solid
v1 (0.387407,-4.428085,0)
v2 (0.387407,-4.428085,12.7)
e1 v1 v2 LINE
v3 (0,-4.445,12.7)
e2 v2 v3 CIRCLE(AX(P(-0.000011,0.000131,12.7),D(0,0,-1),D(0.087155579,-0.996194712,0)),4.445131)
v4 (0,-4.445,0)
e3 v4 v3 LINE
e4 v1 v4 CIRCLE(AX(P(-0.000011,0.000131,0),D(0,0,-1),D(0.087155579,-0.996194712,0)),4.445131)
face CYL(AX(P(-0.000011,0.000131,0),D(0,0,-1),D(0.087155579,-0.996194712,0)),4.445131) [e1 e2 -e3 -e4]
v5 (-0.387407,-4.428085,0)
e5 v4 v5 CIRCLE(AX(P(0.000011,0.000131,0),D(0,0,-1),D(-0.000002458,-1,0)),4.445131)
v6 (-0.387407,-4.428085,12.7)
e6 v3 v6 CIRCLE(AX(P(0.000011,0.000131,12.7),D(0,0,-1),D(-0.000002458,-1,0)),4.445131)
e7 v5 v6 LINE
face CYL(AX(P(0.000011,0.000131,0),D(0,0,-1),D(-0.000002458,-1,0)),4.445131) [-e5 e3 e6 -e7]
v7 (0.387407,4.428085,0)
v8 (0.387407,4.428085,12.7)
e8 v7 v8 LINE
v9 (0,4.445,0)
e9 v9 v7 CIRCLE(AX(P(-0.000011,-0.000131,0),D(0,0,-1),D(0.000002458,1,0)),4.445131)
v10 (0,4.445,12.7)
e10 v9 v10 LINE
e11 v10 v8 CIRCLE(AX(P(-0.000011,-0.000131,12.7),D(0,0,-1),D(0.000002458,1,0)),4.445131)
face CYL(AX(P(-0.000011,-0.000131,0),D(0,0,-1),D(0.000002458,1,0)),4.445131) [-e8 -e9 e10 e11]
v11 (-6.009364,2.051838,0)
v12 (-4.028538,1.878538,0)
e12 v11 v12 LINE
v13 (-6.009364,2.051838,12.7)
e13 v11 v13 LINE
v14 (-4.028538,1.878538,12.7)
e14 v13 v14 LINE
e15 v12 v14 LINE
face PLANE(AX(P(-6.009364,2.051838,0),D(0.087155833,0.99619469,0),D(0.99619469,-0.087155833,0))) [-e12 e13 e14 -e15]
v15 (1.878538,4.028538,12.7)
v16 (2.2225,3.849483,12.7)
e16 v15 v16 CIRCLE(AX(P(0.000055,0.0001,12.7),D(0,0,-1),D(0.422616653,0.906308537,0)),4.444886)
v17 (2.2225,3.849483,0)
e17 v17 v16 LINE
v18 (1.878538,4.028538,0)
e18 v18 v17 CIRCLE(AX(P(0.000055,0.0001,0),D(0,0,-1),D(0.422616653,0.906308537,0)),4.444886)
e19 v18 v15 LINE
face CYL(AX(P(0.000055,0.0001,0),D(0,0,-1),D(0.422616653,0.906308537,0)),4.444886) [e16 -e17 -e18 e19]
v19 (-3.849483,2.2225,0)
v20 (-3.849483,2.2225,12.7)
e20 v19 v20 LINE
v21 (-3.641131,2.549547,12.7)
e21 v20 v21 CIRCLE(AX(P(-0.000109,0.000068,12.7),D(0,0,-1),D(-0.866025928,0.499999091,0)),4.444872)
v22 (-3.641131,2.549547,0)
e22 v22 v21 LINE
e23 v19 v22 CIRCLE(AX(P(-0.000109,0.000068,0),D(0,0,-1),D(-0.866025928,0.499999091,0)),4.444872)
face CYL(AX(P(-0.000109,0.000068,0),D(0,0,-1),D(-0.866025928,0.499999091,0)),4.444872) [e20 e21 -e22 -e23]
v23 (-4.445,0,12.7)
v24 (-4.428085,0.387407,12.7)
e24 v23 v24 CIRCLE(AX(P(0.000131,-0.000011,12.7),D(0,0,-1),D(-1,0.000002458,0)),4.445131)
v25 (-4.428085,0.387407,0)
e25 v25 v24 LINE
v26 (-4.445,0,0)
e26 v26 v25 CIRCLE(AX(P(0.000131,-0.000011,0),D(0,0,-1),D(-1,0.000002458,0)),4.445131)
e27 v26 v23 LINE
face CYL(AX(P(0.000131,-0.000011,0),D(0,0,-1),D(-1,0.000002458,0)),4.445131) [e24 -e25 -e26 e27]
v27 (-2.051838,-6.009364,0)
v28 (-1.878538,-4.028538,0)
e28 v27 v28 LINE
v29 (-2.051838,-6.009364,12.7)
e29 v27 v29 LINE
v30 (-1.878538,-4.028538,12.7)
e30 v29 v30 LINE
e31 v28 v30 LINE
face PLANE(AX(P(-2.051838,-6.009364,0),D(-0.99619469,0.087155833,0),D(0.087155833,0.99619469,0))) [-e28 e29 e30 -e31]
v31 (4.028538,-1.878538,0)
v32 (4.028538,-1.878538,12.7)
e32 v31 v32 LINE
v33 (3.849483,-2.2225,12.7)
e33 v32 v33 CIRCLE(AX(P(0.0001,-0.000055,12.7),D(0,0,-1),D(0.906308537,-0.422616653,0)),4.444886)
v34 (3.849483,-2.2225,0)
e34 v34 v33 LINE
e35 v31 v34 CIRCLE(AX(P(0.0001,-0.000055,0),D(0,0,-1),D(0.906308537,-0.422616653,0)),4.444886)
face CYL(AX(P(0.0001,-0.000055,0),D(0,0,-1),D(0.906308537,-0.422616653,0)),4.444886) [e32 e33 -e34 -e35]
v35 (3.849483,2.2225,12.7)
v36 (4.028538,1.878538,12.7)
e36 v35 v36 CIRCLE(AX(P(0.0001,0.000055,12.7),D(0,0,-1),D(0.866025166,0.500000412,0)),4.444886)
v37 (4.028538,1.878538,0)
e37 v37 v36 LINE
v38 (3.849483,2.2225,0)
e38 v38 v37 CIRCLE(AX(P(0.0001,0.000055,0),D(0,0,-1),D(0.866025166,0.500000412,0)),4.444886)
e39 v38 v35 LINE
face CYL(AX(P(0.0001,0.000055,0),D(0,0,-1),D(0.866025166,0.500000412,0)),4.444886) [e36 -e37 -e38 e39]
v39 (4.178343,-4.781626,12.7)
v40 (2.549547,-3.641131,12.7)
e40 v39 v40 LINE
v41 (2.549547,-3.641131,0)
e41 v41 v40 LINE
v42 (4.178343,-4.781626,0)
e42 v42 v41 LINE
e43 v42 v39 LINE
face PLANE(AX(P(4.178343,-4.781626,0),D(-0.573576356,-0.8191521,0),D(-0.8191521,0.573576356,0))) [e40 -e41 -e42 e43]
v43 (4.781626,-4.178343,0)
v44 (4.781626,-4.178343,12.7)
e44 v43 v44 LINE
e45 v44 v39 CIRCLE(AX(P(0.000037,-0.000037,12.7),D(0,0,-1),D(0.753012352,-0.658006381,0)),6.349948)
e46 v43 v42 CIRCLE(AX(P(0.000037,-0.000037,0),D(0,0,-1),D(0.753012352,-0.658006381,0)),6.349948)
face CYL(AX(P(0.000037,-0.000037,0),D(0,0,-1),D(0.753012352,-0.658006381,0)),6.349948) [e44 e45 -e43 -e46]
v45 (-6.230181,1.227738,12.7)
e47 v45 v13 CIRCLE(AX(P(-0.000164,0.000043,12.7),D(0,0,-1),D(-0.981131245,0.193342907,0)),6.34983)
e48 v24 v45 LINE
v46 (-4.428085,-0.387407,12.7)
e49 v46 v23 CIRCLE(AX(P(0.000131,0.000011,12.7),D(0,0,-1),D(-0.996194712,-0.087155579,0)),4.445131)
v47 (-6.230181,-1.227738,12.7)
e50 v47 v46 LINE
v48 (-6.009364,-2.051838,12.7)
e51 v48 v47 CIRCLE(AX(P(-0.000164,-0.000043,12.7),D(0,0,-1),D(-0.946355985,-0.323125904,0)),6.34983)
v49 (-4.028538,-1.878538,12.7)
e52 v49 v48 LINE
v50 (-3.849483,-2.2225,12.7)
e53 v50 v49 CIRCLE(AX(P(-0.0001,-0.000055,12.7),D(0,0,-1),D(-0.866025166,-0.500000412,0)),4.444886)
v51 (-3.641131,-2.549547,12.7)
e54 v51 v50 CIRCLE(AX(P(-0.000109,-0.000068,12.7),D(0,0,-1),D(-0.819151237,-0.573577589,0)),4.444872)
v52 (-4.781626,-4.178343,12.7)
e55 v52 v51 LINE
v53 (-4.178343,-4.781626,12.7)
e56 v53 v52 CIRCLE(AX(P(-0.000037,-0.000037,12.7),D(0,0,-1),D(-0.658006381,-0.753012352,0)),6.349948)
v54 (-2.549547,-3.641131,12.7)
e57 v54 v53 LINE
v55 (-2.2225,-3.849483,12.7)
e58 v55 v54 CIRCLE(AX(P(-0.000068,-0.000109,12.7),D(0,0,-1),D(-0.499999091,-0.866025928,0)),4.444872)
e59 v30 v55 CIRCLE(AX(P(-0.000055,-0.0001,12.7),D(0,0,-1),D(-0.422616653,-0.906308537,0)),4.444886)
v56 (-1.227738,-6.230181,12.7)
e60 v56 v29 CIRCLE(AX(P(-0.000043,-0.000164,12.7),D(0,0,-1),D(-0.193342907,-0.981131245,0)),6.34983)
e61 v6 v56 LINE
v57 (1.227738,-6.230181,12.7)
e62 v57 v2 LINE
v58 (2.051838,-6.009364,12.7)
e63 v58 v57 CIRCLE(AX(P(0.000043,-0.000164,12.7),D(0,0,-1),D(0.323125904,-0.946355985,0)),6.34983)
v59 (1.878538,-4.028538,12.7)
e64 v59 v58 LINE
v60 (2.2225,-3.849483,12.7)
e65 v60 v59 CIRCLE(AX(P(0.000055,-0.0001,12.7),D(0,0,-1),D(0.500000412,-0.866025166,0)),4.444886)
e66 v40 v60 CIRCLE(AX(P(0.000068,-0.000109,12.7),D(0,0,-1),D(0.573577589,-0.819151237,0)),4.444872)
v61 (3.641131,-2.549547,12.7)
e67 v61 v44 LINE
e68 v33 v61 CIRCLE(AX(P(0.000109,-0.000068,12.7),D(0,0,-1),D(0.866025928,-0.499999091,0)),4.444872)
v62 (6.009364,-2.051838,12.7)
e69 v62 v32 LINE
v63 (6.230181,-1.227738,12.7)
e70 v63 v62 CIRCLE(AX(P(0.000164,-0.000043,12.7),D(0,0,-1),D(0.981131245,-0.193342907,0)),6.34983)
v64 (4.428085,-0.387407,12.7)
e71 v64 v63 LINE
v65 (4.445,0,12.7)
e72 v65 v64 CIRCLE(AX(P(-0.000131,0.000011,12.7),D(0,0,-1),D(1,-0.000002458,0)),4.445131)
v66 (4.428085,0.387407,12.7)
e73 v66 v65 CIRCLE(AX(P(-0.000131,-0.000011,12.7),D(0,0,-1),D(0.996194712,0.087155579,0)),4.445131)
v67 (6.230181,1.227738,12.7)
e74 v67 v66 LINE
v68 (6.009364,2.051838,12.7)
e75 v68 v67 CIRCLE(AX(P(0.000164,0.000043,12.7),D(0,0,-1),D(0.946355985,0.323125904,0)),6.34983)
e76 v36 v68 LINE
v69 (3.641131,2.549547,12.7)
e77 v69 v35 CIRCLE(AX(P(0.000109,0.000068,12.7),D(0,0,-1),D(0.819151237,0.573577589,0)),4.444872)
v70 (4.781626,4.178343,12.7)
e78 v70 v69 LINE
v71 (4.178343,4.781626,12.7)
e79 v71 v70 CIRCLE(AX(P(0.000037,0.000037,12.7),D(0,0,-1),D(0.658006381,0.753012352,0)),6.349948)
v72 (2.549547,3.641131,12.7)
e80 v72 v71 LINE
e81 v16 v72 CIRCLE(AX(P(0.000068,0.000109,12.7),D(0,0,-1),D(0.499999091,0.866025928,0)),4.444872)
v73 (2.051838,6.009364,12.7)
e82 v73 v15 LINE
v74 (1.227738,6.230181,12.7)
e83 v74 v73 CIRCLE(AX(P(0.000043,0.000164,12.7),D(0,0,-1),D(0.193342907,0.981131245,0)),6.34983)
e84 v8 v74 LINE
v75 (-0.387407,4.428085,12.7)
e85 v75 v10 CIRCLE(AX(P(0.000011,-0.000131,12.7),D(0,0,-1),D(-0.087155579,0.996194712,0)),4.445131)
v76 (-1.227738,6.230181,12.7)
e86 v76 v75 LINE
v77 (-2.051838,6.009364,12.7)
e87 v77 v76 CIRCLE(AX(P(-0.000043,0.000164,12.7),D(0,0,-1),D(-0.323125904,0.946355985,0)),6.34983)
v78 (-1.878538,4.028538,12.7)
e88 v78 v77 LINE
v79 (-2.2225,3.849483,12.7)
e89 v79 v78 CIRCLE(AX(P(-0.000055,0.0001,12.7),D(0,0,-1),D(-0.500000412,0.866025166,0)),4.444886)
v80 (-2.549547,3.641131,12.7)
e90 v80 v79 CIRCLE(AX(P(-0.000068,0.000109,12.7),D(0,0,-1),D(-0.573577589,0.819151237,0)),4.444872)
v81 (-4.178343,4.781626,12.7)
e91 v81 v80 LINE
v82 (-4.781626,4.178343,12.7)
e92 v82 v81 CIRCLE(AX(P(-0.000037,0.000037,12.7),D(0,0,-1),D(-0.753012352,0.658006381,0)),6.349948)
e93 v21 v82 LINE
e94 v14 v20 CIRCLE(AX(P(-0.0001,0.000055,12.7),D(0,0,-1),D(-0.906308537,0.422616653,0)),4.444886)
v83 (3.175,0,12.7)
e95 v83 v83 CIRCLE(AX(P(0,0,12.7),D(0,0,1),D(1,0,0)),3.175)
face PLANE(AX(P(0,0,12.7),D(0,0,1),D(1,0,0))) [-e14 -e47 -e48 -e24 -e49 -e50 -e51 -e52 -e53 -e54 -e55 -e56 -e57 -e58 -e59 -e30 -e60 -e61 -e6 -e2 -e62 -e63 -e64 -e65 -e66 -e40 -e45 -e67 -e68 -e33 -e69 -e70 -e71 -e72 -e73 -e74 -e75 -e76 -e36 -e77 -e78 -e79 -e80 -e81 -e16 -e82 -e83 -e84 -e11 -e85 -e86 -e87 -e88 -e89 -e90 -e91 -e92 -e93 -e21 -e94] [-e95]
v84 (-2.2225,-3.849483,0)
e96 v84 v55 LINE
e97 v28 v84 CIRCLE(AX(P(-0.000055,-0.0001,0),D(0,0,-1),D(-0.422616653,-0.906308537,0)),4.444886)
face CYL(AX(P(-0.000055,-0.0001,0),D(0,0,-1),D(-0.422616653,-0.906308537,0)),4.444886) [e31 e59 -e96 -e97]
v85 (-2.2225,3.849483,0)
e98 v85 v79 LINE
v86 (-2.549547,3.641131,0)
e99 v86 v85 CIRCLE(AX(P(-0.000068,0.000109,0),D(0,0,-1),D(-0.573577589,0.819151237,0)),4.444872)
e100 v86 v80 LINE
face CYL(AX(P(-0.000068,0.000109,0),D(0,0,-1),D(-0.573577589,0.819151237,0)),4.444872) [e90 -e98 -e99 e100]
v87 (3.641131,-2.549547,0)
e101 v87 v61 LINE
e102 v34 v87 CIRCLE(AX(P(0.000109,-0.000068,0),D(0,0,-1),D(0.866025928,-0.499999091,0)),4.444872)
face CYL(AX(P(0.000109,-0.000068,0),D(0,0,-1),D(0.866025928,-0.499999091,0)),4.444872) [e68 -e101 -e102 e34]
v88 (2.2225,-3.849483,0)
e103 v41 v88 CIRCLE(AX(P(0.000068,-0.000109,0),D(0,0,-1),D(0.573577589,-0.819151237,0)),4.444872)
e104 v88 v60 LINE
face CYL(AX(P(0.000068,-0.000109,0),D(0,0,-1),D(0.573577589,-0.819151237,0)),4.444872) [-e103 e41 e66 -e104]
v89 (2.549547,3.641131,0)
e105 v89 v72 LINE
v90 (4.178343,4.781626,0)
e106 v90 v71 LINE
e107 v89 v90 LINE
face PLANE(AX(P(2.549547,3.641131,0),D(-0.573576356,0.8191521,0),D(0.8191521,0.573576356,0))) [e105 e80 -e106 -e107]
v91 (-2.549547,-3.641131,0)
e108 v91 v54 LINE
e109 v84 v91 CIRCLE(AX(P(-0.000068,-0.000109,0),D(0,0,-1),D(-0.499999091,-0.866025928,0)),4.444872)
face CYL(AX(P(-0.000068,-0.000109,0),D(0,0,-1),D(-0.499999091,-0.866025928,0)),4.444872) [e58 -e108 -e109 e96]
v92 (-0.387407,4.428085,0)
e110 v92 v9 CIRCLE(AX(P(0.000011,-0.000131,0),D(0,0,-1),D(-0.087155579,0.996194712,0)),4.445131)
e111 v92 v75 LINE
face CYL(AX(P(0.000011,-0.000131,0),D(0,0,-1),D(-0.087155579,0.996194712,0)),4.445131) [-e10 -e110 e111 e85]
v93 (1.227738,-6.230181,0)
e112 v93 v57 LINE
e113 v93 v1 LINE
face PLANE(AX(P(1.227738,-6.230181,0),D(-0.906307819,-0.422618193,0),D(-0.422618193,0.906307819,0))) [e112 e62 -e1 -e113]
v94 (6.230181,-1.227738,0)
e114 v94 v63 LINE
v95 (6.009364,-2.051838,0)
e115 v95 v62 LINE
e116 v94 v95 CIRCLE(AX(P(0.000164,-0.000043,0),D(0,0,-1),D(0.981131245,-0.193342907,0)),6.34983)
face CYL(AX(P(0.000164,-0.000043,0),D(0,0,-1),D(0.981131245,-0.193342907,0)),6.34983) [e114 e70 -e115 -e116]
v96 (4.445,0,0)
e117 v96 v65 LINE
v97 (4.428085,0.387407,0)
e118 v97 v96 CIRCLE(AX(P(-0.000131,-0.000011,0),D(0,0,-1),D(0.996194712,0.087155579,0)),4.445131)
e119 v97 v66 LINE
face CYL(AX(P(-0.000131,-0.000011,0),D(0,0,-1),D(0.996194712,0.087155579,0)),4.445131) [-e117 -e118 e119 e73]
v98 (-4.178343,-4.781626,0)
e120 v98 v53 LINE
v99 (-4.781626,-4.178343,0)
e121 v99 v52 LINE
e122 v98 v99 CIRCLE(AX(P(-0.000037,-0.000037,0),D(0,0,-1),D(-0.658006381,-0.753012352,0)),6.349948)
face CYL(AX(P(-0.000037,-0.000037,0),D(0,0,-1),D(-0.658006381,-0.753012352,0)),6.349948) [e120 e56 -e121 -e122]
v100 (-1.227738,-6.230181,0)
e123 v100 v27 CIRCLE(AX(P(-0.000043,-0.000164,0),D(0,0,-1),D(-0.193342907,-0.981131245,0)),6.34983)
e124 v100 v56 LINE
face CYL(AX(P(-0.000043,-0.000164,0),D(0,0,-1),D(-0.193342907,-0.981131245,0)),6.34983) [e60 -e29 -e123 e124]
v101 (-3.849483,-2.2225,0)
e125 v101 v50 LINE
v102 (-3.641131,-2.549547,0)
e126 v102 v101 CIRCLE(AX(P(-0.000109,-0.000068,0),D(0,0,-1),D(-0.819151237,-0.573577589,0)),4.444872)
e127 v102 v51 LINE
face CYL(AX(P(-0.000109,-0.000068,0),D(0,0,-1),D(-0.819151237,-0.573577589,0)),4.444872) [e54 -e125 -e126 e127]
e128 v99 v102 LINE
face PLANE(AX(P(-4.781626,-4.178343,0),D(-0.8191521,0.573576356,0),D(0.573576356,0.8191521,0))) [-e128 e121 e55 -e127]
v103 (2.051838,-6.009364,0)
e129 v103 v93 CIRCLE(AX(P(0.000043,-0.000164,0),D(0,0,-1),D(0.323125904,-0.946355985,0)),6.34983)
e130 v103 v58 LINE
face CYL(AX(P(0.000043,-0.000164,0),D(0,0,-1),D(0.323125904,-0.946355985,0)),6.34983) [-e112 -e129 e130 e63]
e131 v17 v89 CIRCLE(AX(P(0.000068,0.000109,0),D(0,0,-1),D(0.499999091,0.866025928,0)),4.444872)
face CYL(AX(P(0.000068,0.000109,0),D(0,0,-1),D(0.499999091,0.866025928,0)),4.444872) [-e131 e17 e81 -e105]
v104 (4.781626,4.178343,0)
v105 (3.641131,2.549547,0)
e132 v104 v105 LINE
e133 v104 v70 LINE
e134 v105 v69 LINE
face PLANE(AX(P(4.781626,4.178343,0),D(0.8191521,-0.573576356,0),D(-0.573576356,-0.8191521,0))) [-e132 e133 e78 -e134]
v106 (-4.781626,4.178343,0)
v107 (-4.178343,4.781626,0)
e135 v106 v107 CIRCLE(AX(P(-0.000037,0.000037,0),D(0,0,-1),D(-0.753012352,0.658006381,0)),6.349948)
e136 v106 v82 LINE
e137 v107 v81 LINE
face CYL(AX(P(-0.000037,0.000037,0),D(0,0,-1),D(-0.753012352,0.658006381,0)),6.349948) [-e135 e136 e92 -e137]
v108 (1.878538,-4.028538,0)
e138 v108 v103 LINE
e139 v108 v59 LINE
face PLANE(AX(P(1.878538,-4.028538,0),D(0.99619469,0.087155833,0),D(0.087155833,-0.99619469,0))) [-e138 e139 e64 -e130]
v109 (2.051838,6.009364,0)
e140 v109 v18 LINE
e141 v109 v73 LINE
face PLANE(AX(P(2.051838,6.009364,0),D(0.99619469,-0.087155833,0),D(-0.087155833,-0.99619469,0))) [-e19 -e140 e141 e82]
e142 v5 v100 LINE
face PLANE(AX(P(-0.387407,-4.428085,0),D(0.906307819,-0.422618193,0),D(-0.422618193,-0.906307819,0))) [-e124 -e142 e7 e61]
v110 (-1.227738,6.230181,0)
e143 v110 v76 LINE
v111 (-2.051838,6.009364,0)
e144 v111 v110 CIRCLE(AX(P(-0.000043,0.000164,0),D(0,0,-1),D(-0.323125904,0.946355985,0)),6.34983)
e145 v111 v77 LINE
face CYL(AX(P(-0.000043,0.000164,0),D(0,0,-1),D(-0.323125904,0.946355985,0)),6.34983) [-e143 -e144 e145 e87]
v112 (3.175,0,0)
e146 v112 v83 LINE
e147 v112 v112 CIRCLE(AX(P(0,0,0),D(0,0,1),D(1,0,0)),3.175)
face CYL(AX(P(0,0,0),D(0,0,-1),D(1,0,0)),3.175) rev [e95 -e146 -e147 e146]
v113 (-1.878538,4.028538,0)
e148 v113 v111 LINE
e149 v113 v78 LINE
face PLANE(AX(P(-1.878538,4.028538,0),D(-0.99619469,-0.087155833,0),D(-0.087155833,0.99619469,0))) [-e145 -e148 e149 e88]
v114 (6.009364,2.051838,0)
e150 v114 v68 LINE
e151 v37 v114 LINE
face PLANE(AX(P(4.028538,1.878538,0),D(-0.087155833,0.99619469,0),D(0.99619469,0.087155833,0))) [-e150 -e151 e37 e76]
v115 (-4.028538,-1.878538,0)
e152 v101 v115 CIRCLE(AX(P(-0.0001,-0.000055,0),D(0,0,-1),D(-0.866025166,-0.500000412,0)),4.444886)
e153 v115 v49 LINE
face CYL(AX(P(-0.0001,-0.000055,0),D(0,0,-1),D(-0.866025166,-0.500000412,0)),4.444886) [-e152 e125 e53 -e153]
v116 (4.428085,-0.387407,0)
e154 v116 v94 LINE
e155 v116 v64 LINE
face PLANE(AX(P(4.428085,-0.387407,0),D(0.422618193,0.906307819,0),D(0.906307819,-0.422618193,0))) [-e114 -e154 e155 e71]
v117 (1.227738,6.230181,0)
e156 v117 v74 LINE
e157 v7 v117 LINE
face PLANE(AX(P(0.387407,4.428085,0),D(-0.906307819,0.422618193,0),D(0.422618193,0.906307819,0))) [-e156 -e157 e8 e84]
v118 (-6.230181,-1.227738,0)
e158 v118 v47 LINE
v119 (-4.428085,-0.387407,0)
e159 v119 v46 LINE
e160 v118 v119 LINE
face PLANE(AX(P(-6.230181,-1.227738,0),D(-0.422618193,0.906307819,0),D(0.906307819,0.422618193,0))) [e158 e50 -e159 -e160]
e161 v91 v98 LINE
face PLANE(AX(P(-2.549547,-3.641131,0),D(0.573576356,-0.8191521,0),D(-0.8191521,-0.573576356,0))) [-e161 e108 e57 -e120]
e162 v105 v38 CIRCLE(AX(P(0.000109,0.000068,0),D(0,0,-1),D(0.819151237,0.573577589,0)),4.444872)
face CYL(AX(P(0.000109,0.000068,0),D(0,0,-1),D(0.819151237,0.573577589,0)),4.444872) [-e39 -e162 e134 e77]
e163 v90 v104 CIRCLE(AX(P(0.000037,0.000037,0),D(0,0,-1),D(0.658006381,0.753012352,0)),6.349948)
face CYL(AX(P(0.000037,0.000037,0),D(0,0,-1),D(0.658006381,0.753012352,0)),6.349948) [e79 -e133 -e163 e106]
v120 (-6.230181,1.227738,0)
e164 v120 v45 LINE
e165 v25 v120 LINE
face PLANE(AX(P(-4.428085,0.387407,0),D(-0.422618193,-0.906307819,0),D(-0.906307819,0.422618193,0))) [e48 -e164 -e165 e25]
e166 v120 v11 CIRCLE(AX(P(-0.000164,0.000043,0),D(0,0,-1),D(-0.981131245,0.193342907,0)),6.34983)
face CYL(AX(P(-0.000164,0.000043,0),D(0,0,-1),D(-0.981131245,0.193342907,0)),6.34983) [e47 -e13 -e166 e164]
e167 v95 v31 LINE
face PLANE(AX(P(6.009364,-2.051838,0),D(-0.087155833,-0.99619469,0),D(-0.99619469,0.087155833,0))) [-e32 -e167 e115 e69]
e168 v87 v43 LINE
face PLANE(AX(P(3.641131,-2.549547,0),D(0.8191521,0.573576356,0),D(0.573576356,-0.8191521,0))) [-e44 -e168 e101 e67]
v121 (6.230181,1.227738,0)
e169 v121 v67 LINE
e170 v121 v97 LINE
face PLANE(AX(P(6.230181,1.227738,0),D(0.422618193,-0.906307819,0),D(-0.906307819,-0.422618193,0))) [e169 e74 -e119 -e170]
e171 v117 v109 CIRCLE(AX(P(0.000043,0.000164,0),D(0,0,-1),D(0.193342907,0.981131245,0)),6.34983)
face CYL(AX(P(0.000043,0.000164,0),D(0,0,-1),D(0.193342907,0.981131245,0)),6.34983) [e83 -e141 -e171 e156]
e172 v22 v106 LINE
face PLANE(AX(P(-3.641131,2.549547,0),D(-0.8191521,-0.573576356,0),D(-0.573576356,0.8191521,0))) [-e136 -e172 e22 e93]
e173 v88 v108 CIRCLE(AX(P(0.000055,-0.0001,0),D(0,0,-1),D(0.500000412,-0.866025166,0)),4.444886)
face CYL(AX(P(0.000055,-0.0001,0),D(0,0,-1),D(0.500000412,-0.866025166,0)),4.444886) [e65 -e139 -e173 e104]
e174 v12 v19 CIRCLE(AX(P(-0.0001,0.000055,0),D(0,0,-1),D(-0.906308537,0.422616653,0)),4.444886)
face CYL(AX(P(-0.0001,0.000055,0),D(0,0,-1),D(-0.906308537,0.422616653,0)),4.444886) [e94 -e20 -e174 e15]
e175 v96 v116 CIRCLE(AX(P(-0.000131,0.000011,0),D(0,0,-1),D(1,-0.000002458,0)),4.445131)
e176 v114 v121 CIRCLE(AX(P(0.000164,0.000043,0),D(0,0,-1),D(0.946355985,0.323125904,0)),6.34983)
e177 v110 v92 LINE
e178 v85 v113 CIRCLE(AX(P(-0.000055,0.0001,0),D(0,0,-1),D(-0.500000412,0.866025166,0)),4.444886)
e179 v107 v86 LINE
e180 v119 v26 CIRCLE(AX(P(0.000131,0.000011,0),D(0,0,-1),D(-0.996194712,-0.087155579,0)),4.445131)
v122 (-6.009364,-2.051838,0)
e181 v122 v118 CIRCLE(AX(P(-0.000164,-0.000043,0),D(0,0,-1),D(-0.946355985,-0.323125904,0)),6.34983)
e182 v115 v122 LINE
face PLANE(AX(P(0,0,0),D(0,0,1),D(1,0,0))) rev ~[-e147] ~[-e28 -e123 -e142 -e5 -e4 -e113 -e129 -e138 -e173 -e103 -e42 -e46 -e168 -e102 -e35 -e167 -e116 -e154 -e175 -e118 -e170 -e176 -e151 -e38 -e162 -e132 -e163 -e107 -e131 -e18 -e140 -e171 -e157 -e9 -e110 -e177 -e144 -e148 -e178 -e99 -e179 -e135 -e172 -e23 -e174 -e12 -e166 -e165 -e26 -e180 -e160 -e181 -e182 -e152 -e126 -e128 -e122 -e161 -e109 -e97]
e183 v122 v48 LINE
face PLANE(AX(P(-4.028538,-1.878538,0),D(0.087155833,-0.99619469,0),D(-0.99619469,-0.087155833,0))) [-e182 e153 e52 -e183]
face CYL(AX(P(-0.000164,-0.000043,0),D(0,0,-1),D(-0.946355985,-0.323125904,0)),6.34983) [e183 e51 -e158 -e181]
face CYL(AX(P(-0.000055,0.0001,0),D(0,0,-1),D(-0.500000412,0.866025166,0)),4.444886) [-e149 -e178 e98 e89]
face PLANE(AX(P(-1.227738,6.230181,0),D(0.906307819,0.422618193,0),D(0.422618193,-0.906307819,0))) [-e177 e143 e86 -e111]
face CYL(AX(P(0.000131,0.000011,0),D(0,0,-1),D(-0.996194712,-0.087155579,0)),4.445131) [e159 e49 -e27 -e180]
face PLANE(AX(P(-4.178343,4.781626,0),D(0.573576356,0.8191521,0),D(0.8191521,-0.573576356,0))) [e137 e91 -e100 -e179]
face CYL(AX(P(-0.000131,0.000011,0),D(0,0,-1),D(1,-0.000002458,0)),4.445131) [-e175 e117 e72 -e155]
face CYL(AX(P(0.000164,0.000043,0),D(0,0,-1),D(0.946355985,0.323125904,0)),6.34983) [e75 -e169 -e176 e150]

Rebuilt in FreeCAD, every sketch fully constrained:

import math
import FreeCAD as App
import Part
import Sketcher
from FreeCAD import Vector
Q = App.Units.Quantity

doc = App.newDocument("Part")
body = doc.addObject("PartDesign::Body", "Body")

sketch1 = body.newObject("Sketcher::SketchObject", "Sketch")
sketch1.AttachmentSupport = (doc.getObject("XY_Plane"), [""])
sketch1.MapMode = "FlatFace"
sketch1.addGeometry(Part.Circle(Vector(0, 0, 0), Vector(0, 0, 1), 6.3), False)
sketch1.addGeometry(Part.Circle(Vector(0, 0, 0), Vector(0, 0, 1), 3.2), False)
sketch1.addConstraint(Sketcher.Constraint("Coincident", 0, 3, -1, 1))
sketch1.addConstraint(Sketcher.Constraint("Coincident", 1, 3, -1, 1))
sketch1.addConstraint(Sketcher.Constraint("Diameter", 0, Q("0.5 in")))
sketch1.addConstraint(Sketcher.Constraint("Diameter", 1, Q("0.25 in")))
pad1 = body.newObject("PartDesign::Pad", "Pad")
pad1.Profile = sketch1
pad1.Length = Q("0.5 in")

sketch2 = body.newObject("Sketcher::SketchObject", "Sketch001")
sketch2.AttachmentSupport = (doc.getObject("XY_Plane"), [""])
sketch2.MapMode = "FlatFace"
sketch2.addGeometry(Part.Circle(Vector(0, 0, 0), Vector(0, 0, 1), 6.699885), False)
sketch2.addGeometry(Part.LineSegment(Vector(-6.230181, -1.227738, 0), Vector(-4.428085, -0.387407, 0)), False)
sketch2.addGeometry(Part.ArcOfCircle(Part.Circle(Vector(0.000131, 0.000011, 0), Vector(0, 0, 1), 4.445131), math.radians(-179.999859), math.radians(-175.000009)), False)
sketch2.addGeometry(Part.ArcOfCircle(Part.Circle(Vector(0.000131, -0.000011, 0), Vector(0, 0, 1), 4.445131), math.radians(175.000009), math.radians(179.999859)), False)
sketch2.addGeometry(Part.LineSegment(Vector(-4.428085, 0.387407, 0), Vector(-6.230181, 1.227738, 0)), False)
sketch2.addGeometry(Part.ArcOfCircle(Part.Circle(Vector(-0.000164, 0.000043, 0), Vector(0, 0, 1), 6.34983), math.radians(161.147928), math.radians(168.852063)), False)
sketch2.addGeometry(Part.LineSegment(Vector(-6.009364, 2.051838, 0), Vector(-4.028538, 1.878538, 0)), False)
sketch2.addGeometry(Part.ArcOfCircle(Part.Circle(Vector(-0.0001, 0.000055, 0), Vector(0, 0, 1), 4.444886), math.radians(149.999973), math.radians(155.000102)), False)
sketch2.addGeometry(Part.ArcOfCircle(Part.Circle(Vector(-0.000109, 0.000068, 0), Vector(0, 0, 1), 4.444872), math.radians(144.999919), math.radians(150.00006)), False)
sketch2.addGeometry(Part.LineSegment(Vector(-3.641131, 2.549547, 0), Vector(-4.781626, 4.178343, 0)), False)
sketch2.addGeometry(Part.ArcOfCircle(Part.Circle(Vector(-0.000037, 0.000037, 0), Vector(0, 0, 1), 6.349948), math.radians(131.148005), math.radians(138.851995)), False)
sketch2.addGeometry(Part.LineSegment(Vector(-4.178343, 4.781626, 0), Vector(-2.549547, 3.641131, 0)), False)
sketch2.addGeometry(Part.ArcOfCircle(Part.Circle(Vector(-0.000068, 0.000109, 0), Vector(0, 0, 1), 4.444872), math.radians(119.99994), math.radians(125.000081)), False)
sketch2.addGeometry(Part.ArcOfCircle(Part.Circle(Vector(-0.000055, 0.0001, 0), Vector(0, 0, 1), 4.444886), math.radians(114.999898), math.radians(120.000027)), False)
sketch2.addGeometry(Part.LineSegment(Vector(-1.878538, 4.028538, 0), Vector(-2.051838, 6.009364, 0)), False)
sketch2.addGeometry(Part.ArcOfCircle(Part.Circle(Vector(-0.000043, 0.000164, 0), Vector(0, 0, 1), 6.34983), math.radians(101.147937), math.radians(108.852072)), False)
sketch2.addGeometry(Part.LineSegment(Vector(-1.227738, 6.230181, 0), Vector(-0.387407, 4.428085, 0)), False)
sketch2.addGeometry(Part.ArcOfCircle(Part.Circle(Vector(0.000011, -0.000131, 0), Vector(0, 0, 1), 4.445131), math.radians(90.000141), math.radians(94.999991)), False)
sketch2.addGeometry(Part.ArcOfCircle(Part.Circle(Vector(-0.000011, -0.000131, 0), Vector(0, 0, 1), 4.445131), math.radians(85.000009), math.radians(89.999859)), False)
sketch2.addGeometry(Part.LineSegment(Vector(0.387407, 4.428085, 0), Vector(1.227738, 6.230181, 0)), False)
sketch2.addGeometry(Part.ArcOfCircle(Part.Circle(Vector(0.000043, 0.000164, 0), Vector(0, 0, 1), 6.34983), math.radians(71.147928), math.radians(78.852063)), False)
sketch2.addGeometry(Part.LineSegment(Vector(2.051838, 6.009364, 0), Vector(1.878538, 4.028538, 0)), False)
sketch2.addGeometry(Part.ArcOfCircle(Part.Circle(Vector(0.000055, 0.0001, 0), Vector(0, 0, 1), 4.444886), math.radians(59.999973), math.radians(65.000102)), False)
sketch2.addGeometry(Part.ArcOfCircle(Part.Circle(Vector(0.000068, 0.000109, 0), Vector(0, 0, 1), 4.444872), math.radians(54.999919), math.radians(60.00006)), False)
sketch2.addGeometry(Part.LineSegment(Vector(2.549547, 3.641131, 0), Vector(4.178343, 4.781626, 0)), False)
sketch2.addGeometry(Part.ArcOfCircle(Part.Circle(Vector(0.000037, 0.000037, 0), Vector(0, 0, 1), 6.349948), math.radians(41.148005), math.radians(48.851995)), False)
sketch2.addGeometry(Part.LineSegment(Vector(4.781626, 4.178343, 0), Vector(3.641131, 2.549547, 0)), False)
sketch2.addGeometry(Part.ArcOfCircle(Part.Circle(Vector(0.000109, 0.000068, 0), Vector(0, 0, 1), 4.444872), math.radians(29.99994), math.radians(35.000081)), False)
sketch2.addGeometry(Part.ArcOfCircle(Part.Circle(Vector(0.0001, 0.000055, 0), Vector(0, 0, 1), 4.444886), math.radians(24.999898), math.radians(30.000027)), False)
sketch2.addGeometry(Part.LineSegment(Vector(4.028538, 1.878538, 0), Vector(6.009364, 2.051838, 0)), False)
sketch2.addGeometry(Part.ArcOfCircle(Part.Circle(Vector(0.000164, 0.000043, 0), Vector(0, 0, 1), 6.34983), math.radians(11.147937), math.radians(18.852072)), False)
sketch2.addGeometry(Part.LineSegment(Vector(6.230181, 1.227738, 0), Vector(4.428085, 0.387407, 0)), False)
sketch2.addGeometry(Part.ArcOfCircle(Part.Circle(Vector(-0.000131, -0.000011, 0), Vector(0, 0, 1), 4.445131), math.radians(0.000141), math.radians(4.999991)), False)
sketch2.addGeometry(Part.ArcOfCircle(Part.Circle(Vector(-0.000131, 0.000011, 0), Vector(0, 0, 1), 4.445131), math.radians(-4.999991), math.radians(-0.000141)), False)
sketch2.addGeometry(Part.LineSegment(Vector(4.428085, -0.387407, 0), Vector(6.230181, -1.227738, 0)), False)
sketch2.addGeometry(Part.ArcOfCircle(Part.Circle(Vector(0.000164, -0.000043, 0), Vector(0, 0, 1), 6.34983), math.radians(-18.852072), math.radians(-11.147937)), False)
sketch2.addGeometry(Part.LineSegment(Vector(6.009364, -2.051838, 0), Vector(4.028538, -1.878538, 0)), False)
sketch2.addGeometry(Part.ArcOfCircle(Part.Circle(Vector(0.0001, -0.000055, 0), Vector(0, 0, 1), 4.444886), math.radians(-30.000027), math.radians(-24.999898)), False)
sketch2.addGeometry(Part.ArcOfCircle(Part.Circle(Vector(0.000109, -0.000068, 0), Vector(0, 0, 1), 4.444872), math.radians(-35.000081), math.radians(-29.99994)), False)
sketch2.addGeometry(Part.LineSegment(Vector(3.641131, -2.549547, 0), Vector(4.781626, -4.178343, 0)), False)
sketch2.addGeometry(Part.ArcOfCircle(Part.Circle(Vector(0.000037, -0.000037, 0), Vector(0, 0, 1), 6.349948), math.radians(-48.851995), math.radians(-41.148005)), False)
sketch2.addGeometry(Part.LineSegment(Vector(4.178343, -4.781626, 0), Vector(2.549547, -3.641131, 0)), False)
sketch2.addGeometry(Part.ArcOfCircle(Part.Circle(Vector(0.000068, -0.000109, 0), Vector(0, 0, 1), 4.444872), math.radians(-60.00006), math.radians(-54.999919)), False)
sketch2.addGeometry(Part.ArcOfCircle(Part.Circle(Vector(0.000055, -0.0001, 0), Vector(0, 0, 1), 4.444886), math.radians(-65.000102), math.radians(-59.999973)), False)
sketch2.addGeometry(Part.LineSegment(Vector(1.878538, -4.028538, 0), Vector(2.051838, -6.009364, 0)), False)
sketch2.addGeometry(Part.ArcOfCircle(Part.Circle(Vector(0.000043, -0.000164, 0), Vector(0, 0, 1), 6.34983), math.radians(-78.852063), math.radians(-71.147928)), False)
sketch2.addGeometry(Part.LineSegment(Vector(1.227738, -6.230181, 0), Vector(0.387407, -4.428085, 0)), False)
sketch2.addGeometry(Part.ArcOfCircle(Part.Circle(Vector(-0.000011, 0.000131, 0), Vector(0, 0, 1), 4.445131), math.radians(-89.999859), math.radians(-85.000009)), False)
sketch2.addGeometry(Part.ArcOfCircle(Part.Circle(Vector(0.000011, 0.000131, 0), Vector(0, 0, 1), 4.445131), math.radians(-94.999991), math.radians(-90.000141)), False)
sketch2.addGeometry(Part.LineSegment(Vector(-0.387407, -4.428085, 0), Vector(-1.227738, -6.230181, 0)), False)
sketch2.addGeometry(Part.ArcOfCircle(Part.Circle(Vector(-0.000043, -0.000164, 0), Vector(0, 0, 1), 6.34983), math.radians(-108.852072), math.radians(-101.147937)), False)
sketch2.addGeometry(Part.LineSegment(Vector(-2.051838, -6.009364, 0), Vector(-1.878538, -4.028538, 0)), False)
sketch2.addGeometry(Part.ArcOfCircle(Part.Circle(Vector(-0.000055, -0.0001, 0), Vector(0, 0, 1), 4.444886), math.radians(-120.000027), math.radians(-114.999898)), False)
sketch2.addGeometry(Part.ArcOfCircle(Part.Circle(Vector(-0.000068, -0.000109, 0), Vector(0, 0, 1), 4.444872), math.radians(-125.000081), math.radians(-119.99994)), False)
sketch2.addGeometry(Part.LineSegment(Vector(-2.549547, -3.641131, 0), Vector(-4.178343, -4.781626, 0)), False)
sketch2.addGeometry(Part.ArcOfCircle(Part.Circle(Vector(-0.000037, -0.000037, 0), Vector(0, 0, 1), 6.349948), math.radians(-138.851995), math.radians(-131.148005)), False)
sketch2.addGeometry(Part.LineSegment(Vector(-4.781626, -4.178343, 0), Vector(-3.641131, -2.549547, 0)), False)
sketch2.addGeometry(Part.ArcOfCircle(Part.Circle(Vector(-0.000109, -0.000068, 0), Vector(0, 0, 1), 4.444872), math.radians(-150.00006), math.radians(-144.999919)), False)
sketch2.addGeometry(Part.ArcOfCircle(Part.Circle(Vector(-0.0001, -0.000055, 0), Vector(0, 0, 1), 4.444886), math.radians(-155.000102), math.radians(-149.999973)), False)
sketch2.addGeometry(Part.LineSegment(Vector(-4.028538, -1.878538, 0), Vector(-6.009364, -2.051838, 0)), False)
sketch2.addGeometry(Part.ArcOfCircle(Part.Circle(Vector(-0.000164, -0.000043, 0), Vector(0, 0, 1), 6.34983), math.radians(-168.852063), math.radians(-161.147928)), False)
sketch2.addConstraint(Sketcher.Constraint("Coincident", 1, 2, 2, 2))
sketch2.addConstraint(Sketcher.Constraint("Coincident", 2, 1, 3, 2))
sketch2.addConstraint(Sketcher.Constraint("Coincident", 3, 1, 4, 1))
sketch2.addConstraint(Sketcher.Constraint("Coincident", 4, 2, 5, 2))
sketch2.addConstraint(Sketcher.Constraint("Coincident", 5, 1, 6, 1))
sketch2.addConstraint(Sketcher.Constraint("Coincident", 6, 2, 7, 2))
sketch2.addConstraint(Sketcher.Constraint("Tangent", 7, 1, 8, 2))
sketch2.addConstraint(Sketcher.Constraint("Coincident", 8, 1, 9, 1))
sketch2.addConstraint(Sketcher.Constraint("Coincident", 9, 2, 10, 2))
sketch2.addConstraint(Sketcher.Constraint("Coincident", 10, 1, 11, 1))
sketch2.addConstraint(Sketcher.Constraint("Coincident", 11, 2, 12, 2))
sketch2.addConstraint(Sketcher.Constraint("Tangent", 12, 1, 13, 2))
sketch2.addConstraint(Sketcher.Constraint("Coincident", 13, 1, 14, 1))
sketch2.addConstraint(Sketcher.Constraint("Coincident", 14, 2, 15, 2))
sketch2.addConstraint(Sketcher.Constraint("Coincident", 15, 1, 16, 1))
sketch2.addConstraint(Sketcher.Constraint("Coincident", 16, 2, 17, 2))
sketch2.addConstraint(Sketcher.Constraint("Coincident", 17, 1, 18, 2))
sketch2.addConstraint(Sketcher.Constraint("Coincident", 18, 1, 19, 1))
sketch2.addConstraint(Sketcher.Constraint("Coincident", 19, 2, 20, 2))
sketch2.addConstraint(Sketcher.Constraint("Coincident", 20, 1, 21, 1))
sketch2.addConstraint(Sketcher.Constraint("Coincident", 21, 2, 22, 2))
sketch2.addConstraint(Sketcher.Constraint("Tangent", 22, 1, 23, 2))
sketch2.addConstraint(Sketcher.Constraint("Coincident", 23, 1, 24, 1))
sketch2.addConstraint(Sketcher.Constraint("Coincident", 24, 2, 25, 2))
sketch2.addConstraint(Sketcher.Constraint("Coincident", 25, 1, 26, 1))
sketch2.addConstraint(Sketcher.Constraint("Coincident", 26, 2, 27, 2))
sketch2.addConstraint(Sketcher.Constraint("Tangent", 27, 1, 28, 2))
sketch2.addConstraint(Sketcher.Constraint("Coincident", 28, 1, 29, 1))
sketch2.addConstraint(Sketcher.Constraint("Coincident", 29, 2, 30, 2))
sketch2.addConstraint(Sketcher.Constraint("Coincident", 30, 1, 31, 1))
sketch2.addConstraint(Sketcher.Constraint("Coincident", 31, 2, 32, 2))
sketch2.addConstraint(Sketcher.Constraint("Coincident", 32, 1, 33, 2))
sketch2.addConstraint(Sketcher.Constraint("Coincident", 33, 1, 34, 1))
sketch2.addConstraint(Sketcher.Constraint("Coincident", 34, 2, 35, 2))
sketch2.addConstraint(Sketcher.Constraint("Coincident", 35, 1, 36, 1))
sketch2.addConstraint(Sketcher.Constraint("Coincident", 36, 2, 37, 2))
sketch2.addConstraint(Sketcher.Constraint("Tangent", 37, 1, 38, 2))
sketch2.addConstraint(Sketcher.Constraint("Coincident", 38, 1, 39, 1))
sketch2.addConstraint(Sketcher.Constraint("Coincident", 39, 2, 40, 2))
sketch2.addConstraint(Sketcher.Constraint("Coincident", 40, 1, 41, 1))
sketch2.addConstraint(Sketcher.Constraint("Coincident", 41, 2, 42, 2))
sketch2.addConstraint(Sketcher.Constraint("Tangent", 42, 1, 43, 2))
sketch2.addConstraint(Sketcher.Constraint("Coincident", 43, 1, 44, 1))
sketch2.addConstraint(Sketcher.Constraint("Coincident", 44, 2, 45, 2))
sketch2.addConstraint(Sketcher.Constraint("Coincident", 45, 1, 46, 1))
sketch2.addConstraint(Sketcher.Constraint("Coincident", 46, 2, 47, 2))
sketch2.addConstraint(Sketcher.Constraint("Coincident", 47, 1, 48, 2))
sketch2.addConstraint(Sketcher.Constraint("Coincident", 48, 1, 49, 1))
sketch2.addConstraint(Sketcher.Constraint("Coincident", 49, 2, 50, 2))
sketch2.addConstraint(Sketcher.Constraint("Coincident", 50, 1, 51, 1))
sketch2.addConstraint(Sketcher.Constraint("Coincident", 51, 2, 52, 2))
sketch2.addConstraint(Sketcher.Constraint("Tangent", 52, 1, 53, 2))
sketch2.addConstraint(Sketcher.Constraint("Coincident", 53, 1, 54, 1))
sketch2.addConstraint(Sketcher.Constraint("Coincident", 54, 2, 55, 2))
sketch2.addConstraint(Sketcher.Constraint("Coincident", 55, 1, 56, 1))
sketch2.addConstraint(Sketcher.Constraint("Coincident", 56, 2, 57, 2))
sketch2.addConstraint(Sketcher.Constraint("Tangent", 57, 1, 58, 2))
sketch2.addConstraint(Sketcher.Constraint("Coincident", 58, 1, 59, 1))
sketch2.addConstraint(Sketcher.Constraint("Coincident", 59, 2, 60, 2))
sketch2.addConstraint(Sketcher.Constraint("Coincident", 60, 1, 1, 1))
sketch2.addConstraint(Sketcher.Constraint("Coincident", 0, 3, -1, 1))
sketch2.addConstraint(Sketcher.Constraint("Equal", 2, 3))
sketch2.addConstraint(Sketcher.Constraint("Equal", 8, 12))
sketch2.addConstraint(Sketcher.Constraint("Equal", 7, 13))
sketch2.addConstraint(Sketcher.Constraint("Equal", 5, 15))
sketch2.addConstraint(Sketcher.Constraint("Equal", 3, 17))
sketch2.addConstraint(Sketcher.Constraint("Equal", 17, 18))
sketch2.addConstraint(Sketcher.Constraint("Equal", 15, 20))
sketch2.addConstraint(Sketcher.Constraint("Equal", 13, 22))
sketch2.addConstraint(Sketcher.Constraint("Equal", 12, 23))
sketch2.addConstraint(Sketcher.Constraint("Equal", 10, 25))
sketch2.addConstraint(Sketcher.Constraint("Equal", 23, 27))
sketch2.addConstraint(Sketcher.Constraint("Equal", 22, 28))
sketch2.addConstraint(Sketcher.Constraint("Equal", 20, 30))
sketch2.addConstraint(Sketcher.Constraint("Equal", 18, 32))
sketch2.addConstraint(Sketcher.Constraint("Equal", 32, 33))
sketch2.addConstraint(Sketcher.Constraint("Equal", 30, 35))
sketch2.addConstraint(Sketcher.Constraint("Equal", 28, 37))
sketch2.addConstraint(Sketcher.Constraint("Equal", 27, 38))
sketch2.addConstraint(Sketcher.Constraint("Equal", 25, 40))
sketch2.addConstraint(Sketcher.Constraint("Equal", 38, 42))
sketch2.addConstraint(Sketcher.Constraint("Equal", 37, 43))
sketch2.addConstraint(Sketcher.Constraint("Equal", 35, 45))
sketch2.addConstraint(Sketcher.Constraint("Equal", 33, 47))
sketch2.addConstraint(Sketcher.Constraint("Equal", 47, 48))
sketch2.addConstraint(Sketcher.Constraint("Equal", 45, 50))
sketch2.addConstraint(Sketcher.Constraint("Equal", 43, 52))
sketch2.addConstraint(Sketcher.Constraint("Equal", 42, 53))
sketch2.addConstraint(Sketcher.Constraint("Equal", 40, 55))
sketch2.addConstraint(Sketcher.Constraint("Equal", 53, 57))
sketch2.addConstraint(Sketcher.Constraint("Equal", 52, 58))
sketch2.addConstraint(Sketcher.Constraint("Equal", 50, 60))
sketch2.addConstraint(Sketcher.Constraint("Symmetric", 2, 3, 32, 3, -1, 1))
sketch2.addConstraint(Sketcher.Constraint("Symmetric", 5, 3, 35, 3, -1, 1))
sketch2.addConstraint(Sketcher.Constraint("Symmetric", 7, 3, 37, 3, -1, 1))
sketch2.addConstraint(Sketcher.Constraint("Symmetric", 10, 3, 40, 3, -1, 1))
sketch2.addConstraint(Sketcher.Constraint("Symmetric", 12, 3, 42, 3, -1, 1))
sketch2.addConstraint(Sketcher.Constraint("Symmetric", 15, 3, 45, 3, -1, 1))
sketch2.addConstraint(Sketcher.Constraint("Symmetric", 17, 3, 47, 3, -1, 1))
sketch2.addConstraint(Sketcher.Constraint("Symmetric", 20, 3, 50, 3, -1, 1))
sketch2.addConstraint(Sketcher.Constraint("Symmetric", 22, 3, 52, 3, -1, 1))
sketch2.addConstraint(Sketcher.Constraint("Symmetric", 25, 3, 55, 3, -1, 1))
sketch2.addConstraint(Sketcher.Constraint("Symmetric", 27, 3, 57, 3, -1, 1))
sketch2.addConstraint(Sketcher.Constraint("Symmetric", 30, 3, 60, 3, -1, 1))
sketch2.addConstraint(Sketcher.Constraint("Symmetric", 3, 1, 33, 1, -1, 1))
sketch2.addConstraint(Sketcher.Constraint("Symmetric", 18, 1, 48, 1, -1, 1))
sketch2.addConstraint(Sketcher.Constraint("Symmetric", 15, 3, 20, 3, -2))
sketch2.addConstraint(Sketcher.Constraint("Symmetric", 13, 3, 22, 3, -2))
sketch2.addConstraint(Sketcher.Constraint("Symmetric", 10, 3, 25, 3, -2))
sketch2.addConstraint(Sketcher.Constraint("Symmetric", 8, 3, 27, 3, -2))
sketch2.addConstraint(Sketcher.Constraint("Symmetric", 5, 3, 30, 3, -2))
sketch2.addConstraint(Sketcher.Constraint("Symmetric", 16, 2, 18, 1, -2))
sketch2.addConstraint(Sketcher.Constraint("Symmetric", 3, 1, 31, 2, -2))
sketch2.addConstraint(Sketcher.Constraint("PointOnObject", 2, 1, -1))
sketch2.addConstraint(Sketcher.Constraint("PointOnObject", 17, 1, -2))
sketch2.addConstraint(Sketcher.Constraint("PointOnObject", 32, 1, -1))
sketch2.addConstraint(Sketcher.Constraint("PointOnObject", 47, 1, -2))
sketch2.addConstraint(Sketcher.Constraint("Perpendicular", 1, 16))
sketch2.addConstraint(Sketcher.Constraint("Perpendicular", 4, 19))
sketch2.addConstraint(Sketcher.Constraint("Perpendicular", 6, 21))
sketch2.addConstraint(Sketcher.Constraint("Perpendicular", 9, 24))
sketch2.addConstraint(Sketcher.Constraint("Perpendicular", 11, 26))
sketch2.addConstraint(Sketcher.Constraint("Perpendicular", 14, 29))
sketch2.addConstraint(Sketcher.Constraint("Perpendicular", 16, 31))
sketch2.addConstraint(Sketcher.Constraint("Perpendicular", 19, 34))
sketch2.addConstraint(Sketcher.Constraint("Perpendicular", 21, 36))
sketch2.addConstraint(Sketcher.Constraint("Perpendicular", 24, 39))
sketch2.addConstraint(Sketcher.Constraint("Perpendicular", 26, 41))
sketch2.addConstraint(Sketcher.Constraint("Perpendicular", 29, 44))
sketch2.addConstraint(Sketcher.Constraint("Perpendicular", 31, 46))
sketch2.addConstraint(Sketcher.Constraint("Perpendicular", 34, 49))
sketch2.addConstraint(Sketcher.Constraint("Perpendicular", 36, 51))
sketch2.addConstraint(Sketcher.Constraint("Perpendicular", 39, 54))
sketch2.addConstraint(Sketcher.Constraint("Perpendicular", 41, 56))
sketch2.addConstraint(Sketcher.Constraint("Perpendicular", 44, 59))
sketch2.addConstraint(Sketcher.Constraint("Horizontal", 15, 1, 19, 2))
sketch2.addConstraint(Sketcher.Constraint("Horizontal", 14, 2, 20, 1))
sketch2.addConstraint(Sketcher.Constraint("Horizontal", 13, 1, 21, 2))
sketch2.addConstraint(Sketcher.Constraint("Horizontal", 12, 1, 22, 1))
sketch2.addConstraint(Sketcher.Constraint("Horizontal", 11, 2, 23, 1))
sketch2.addConstraint(Sketcher.Constraint("Horizontal", 10, 1, 24, 2))
sketch2.addConstraint(Sketcher.Constraint("Horizontal", 9, 2, 25, 1))
sketch2.addConstraint(Sketcher.Constraint("Horizontal", 7, 1, 27, 1))
sketch2.addConstraint(Sketcher.Constraint("Horizontal", 6, 2, 28, 1))
sketch2.addConstraint(Sketcher.Constraint("Horizontal", 1, 2, 33, 1))
sketch2.addConstraint(Sketcher.Constraint("Horizontal", 46, 2, 48, 1))
sketch2.addConstraint(Sketcher.Constraint("Horizontal", 44, 2, 50, 1))
sketch2.addConstraint(Sketcher.Constraint("Horizontal", 42, 1, 52, 1))
sketch2.addConstraint(Sketcher.Constraint("Horizontal", 41, 2, 53, 1))
sketch2.addConstraint(Sketcher.Constraint("Horizontal", 39, 2, 55, 1))
sketch2.addConstraint(Sketcher.Constraint("Horizontal", 37, 1, 57, 1))
sketch2.addConstraint(Sketcher.Constraint("Horizontal", 36, 2, 58, 1))
sketch2.addConstraint(Sketcher.Constraint("Vertical", 29, 2, 35, 1))
sketch2.addConstraint(Sketcher.Constraint("Vertical", 27, 1, 37, 1))
sketch2.addConstraint(Sketcher.Constraint("Vertical", 26, 2, 38, 1))
sketch2.addConstraint(Sketcher.Constraint("Vertical", 24, 2, 40, 1))
sketch2.addConstraint(Sketcher.Constraint("Vertical", 22, 1, 42, 1))
sketch2.addConstraint(Sketcher.Constraint("Vertical", 21, 2, 43, 1))
sketch2.addConstraint(Sketcher.Constraint("Equal", 4, 6))
sketch2.addConstraint(Sketcher.Constraint("Equal", 6, 9))
sketch2.addConstraint(Sketcher.Constraint("Equal", 9, 11))
sketch2.addConstraint(Sketcher.Constraint("Equal", 11, 14))
sketch2.addConstraint(Sketcher.Constraint("Equal", 14, 16))
sketch2.addConstraint(Sketcher.Constraint("Angle", 1, Q("24.999996 deg")))
sketch2.addConstraint(Sketcher.Constraint("Angle", 6, Q("-5.000005 deg")))
sketch2.addConstraint(Sketcher.Constraint("Angle", 9, Q("124.999994 deg")))
sketch2.addConstraint(Sketcher.Constraint("Diameter", 0, 13.39977))
sketch2.addConstraint(Sketcher.Constraint("DistanceX", 2, 1, -1, 1, Q("0.175 in")))
sketch2.addConstraint(Sketcher.Constraint("DistanceY", -1, 1, 17, 1, Q("0.175 in")))
sketch2.addConstraint(Sketcher.Constraint("Radius", 2, 4.445131))
sketch2.addConstraint(Sketcher.Constraint("Radius", 5, 6.34983))
sketch2.addConstraint(Sketcher.Constraint("Radius", 8, 4.444872))
sketch2.addConstraint(Sketcher.Constraint("Radius", 10, 6.349948))
sketch2.addConstraint(Sketcher.Constraint("DistanceY", -1, 1, 7, 1, Q("0.0875 in")))
sketch2.addConstraint(Sketcher.Constraint("DistanceX", 12, 1, -1, 1, Q("0.0875 in")))
sketch2.addConstraint(Sketcher.Constraint("Radius", 7, 4.444886))
sketch2.addConstraint(Sketcher.Constraint("DistanceX", 8, 3, -1, 1, 0.000109))
sketch2.addConstraint(Sketcher.Constraint("DistanceY", -1, 1, 12, 3, 0.000109))
sketch2.addConstraint(Sketcher.Constraint("DistanceX", 4, 2, -1, 1, 6.230181))
sketch2.addConstraint(Sketcher.Constraint("DistanceY", -1, 1, 5, 1, 2.051838))
sketch2.addConstraint(Sketcher.Constraint("DistanceX", 6, 2, -1, 1, 4.028538))
sketch2.addConstraint(Sketcher.Constraint("DistanceX", 8, 1, -1, 1, 3.641131))
sketch2.addConstraint(Sketcher.Constraint("DistanceY", -1, 1, 11, 2, 3.641131))
sketch2.addConstraint(Sketcher.Constraint("DistanceX", 13, 1, -1, 1, 1.878538))
sketch2.addConstraint(Sketcher.Constraint("DistanceY", -1, 1, 13, 1, 4.028538))
sketch2.addConstraint(Sketcher.Constraint("DistanceX", 14, 2, -1, 1, 2.051838))
sketch2.addConstraint(Sketcher.Constraint("DistanceX", 15, 1, -1, 1, 1.227738))
sketch2.addConstraint(Sketcher.Constraint("DistanceY", -1, 1, 15, 1, 6.230181))
sketch2.addConstraint(Sketcher.Constraint("DistanceY", -1, 1, 30, 1, 1.227738))
pocket1 = body.newObject("PartDesign::Pocket", "Pocket")
pocket1.Profile = sketch2
pocket1.Type = "ThroughAll"
pocket1.Reversed = True

doc.recompute()
